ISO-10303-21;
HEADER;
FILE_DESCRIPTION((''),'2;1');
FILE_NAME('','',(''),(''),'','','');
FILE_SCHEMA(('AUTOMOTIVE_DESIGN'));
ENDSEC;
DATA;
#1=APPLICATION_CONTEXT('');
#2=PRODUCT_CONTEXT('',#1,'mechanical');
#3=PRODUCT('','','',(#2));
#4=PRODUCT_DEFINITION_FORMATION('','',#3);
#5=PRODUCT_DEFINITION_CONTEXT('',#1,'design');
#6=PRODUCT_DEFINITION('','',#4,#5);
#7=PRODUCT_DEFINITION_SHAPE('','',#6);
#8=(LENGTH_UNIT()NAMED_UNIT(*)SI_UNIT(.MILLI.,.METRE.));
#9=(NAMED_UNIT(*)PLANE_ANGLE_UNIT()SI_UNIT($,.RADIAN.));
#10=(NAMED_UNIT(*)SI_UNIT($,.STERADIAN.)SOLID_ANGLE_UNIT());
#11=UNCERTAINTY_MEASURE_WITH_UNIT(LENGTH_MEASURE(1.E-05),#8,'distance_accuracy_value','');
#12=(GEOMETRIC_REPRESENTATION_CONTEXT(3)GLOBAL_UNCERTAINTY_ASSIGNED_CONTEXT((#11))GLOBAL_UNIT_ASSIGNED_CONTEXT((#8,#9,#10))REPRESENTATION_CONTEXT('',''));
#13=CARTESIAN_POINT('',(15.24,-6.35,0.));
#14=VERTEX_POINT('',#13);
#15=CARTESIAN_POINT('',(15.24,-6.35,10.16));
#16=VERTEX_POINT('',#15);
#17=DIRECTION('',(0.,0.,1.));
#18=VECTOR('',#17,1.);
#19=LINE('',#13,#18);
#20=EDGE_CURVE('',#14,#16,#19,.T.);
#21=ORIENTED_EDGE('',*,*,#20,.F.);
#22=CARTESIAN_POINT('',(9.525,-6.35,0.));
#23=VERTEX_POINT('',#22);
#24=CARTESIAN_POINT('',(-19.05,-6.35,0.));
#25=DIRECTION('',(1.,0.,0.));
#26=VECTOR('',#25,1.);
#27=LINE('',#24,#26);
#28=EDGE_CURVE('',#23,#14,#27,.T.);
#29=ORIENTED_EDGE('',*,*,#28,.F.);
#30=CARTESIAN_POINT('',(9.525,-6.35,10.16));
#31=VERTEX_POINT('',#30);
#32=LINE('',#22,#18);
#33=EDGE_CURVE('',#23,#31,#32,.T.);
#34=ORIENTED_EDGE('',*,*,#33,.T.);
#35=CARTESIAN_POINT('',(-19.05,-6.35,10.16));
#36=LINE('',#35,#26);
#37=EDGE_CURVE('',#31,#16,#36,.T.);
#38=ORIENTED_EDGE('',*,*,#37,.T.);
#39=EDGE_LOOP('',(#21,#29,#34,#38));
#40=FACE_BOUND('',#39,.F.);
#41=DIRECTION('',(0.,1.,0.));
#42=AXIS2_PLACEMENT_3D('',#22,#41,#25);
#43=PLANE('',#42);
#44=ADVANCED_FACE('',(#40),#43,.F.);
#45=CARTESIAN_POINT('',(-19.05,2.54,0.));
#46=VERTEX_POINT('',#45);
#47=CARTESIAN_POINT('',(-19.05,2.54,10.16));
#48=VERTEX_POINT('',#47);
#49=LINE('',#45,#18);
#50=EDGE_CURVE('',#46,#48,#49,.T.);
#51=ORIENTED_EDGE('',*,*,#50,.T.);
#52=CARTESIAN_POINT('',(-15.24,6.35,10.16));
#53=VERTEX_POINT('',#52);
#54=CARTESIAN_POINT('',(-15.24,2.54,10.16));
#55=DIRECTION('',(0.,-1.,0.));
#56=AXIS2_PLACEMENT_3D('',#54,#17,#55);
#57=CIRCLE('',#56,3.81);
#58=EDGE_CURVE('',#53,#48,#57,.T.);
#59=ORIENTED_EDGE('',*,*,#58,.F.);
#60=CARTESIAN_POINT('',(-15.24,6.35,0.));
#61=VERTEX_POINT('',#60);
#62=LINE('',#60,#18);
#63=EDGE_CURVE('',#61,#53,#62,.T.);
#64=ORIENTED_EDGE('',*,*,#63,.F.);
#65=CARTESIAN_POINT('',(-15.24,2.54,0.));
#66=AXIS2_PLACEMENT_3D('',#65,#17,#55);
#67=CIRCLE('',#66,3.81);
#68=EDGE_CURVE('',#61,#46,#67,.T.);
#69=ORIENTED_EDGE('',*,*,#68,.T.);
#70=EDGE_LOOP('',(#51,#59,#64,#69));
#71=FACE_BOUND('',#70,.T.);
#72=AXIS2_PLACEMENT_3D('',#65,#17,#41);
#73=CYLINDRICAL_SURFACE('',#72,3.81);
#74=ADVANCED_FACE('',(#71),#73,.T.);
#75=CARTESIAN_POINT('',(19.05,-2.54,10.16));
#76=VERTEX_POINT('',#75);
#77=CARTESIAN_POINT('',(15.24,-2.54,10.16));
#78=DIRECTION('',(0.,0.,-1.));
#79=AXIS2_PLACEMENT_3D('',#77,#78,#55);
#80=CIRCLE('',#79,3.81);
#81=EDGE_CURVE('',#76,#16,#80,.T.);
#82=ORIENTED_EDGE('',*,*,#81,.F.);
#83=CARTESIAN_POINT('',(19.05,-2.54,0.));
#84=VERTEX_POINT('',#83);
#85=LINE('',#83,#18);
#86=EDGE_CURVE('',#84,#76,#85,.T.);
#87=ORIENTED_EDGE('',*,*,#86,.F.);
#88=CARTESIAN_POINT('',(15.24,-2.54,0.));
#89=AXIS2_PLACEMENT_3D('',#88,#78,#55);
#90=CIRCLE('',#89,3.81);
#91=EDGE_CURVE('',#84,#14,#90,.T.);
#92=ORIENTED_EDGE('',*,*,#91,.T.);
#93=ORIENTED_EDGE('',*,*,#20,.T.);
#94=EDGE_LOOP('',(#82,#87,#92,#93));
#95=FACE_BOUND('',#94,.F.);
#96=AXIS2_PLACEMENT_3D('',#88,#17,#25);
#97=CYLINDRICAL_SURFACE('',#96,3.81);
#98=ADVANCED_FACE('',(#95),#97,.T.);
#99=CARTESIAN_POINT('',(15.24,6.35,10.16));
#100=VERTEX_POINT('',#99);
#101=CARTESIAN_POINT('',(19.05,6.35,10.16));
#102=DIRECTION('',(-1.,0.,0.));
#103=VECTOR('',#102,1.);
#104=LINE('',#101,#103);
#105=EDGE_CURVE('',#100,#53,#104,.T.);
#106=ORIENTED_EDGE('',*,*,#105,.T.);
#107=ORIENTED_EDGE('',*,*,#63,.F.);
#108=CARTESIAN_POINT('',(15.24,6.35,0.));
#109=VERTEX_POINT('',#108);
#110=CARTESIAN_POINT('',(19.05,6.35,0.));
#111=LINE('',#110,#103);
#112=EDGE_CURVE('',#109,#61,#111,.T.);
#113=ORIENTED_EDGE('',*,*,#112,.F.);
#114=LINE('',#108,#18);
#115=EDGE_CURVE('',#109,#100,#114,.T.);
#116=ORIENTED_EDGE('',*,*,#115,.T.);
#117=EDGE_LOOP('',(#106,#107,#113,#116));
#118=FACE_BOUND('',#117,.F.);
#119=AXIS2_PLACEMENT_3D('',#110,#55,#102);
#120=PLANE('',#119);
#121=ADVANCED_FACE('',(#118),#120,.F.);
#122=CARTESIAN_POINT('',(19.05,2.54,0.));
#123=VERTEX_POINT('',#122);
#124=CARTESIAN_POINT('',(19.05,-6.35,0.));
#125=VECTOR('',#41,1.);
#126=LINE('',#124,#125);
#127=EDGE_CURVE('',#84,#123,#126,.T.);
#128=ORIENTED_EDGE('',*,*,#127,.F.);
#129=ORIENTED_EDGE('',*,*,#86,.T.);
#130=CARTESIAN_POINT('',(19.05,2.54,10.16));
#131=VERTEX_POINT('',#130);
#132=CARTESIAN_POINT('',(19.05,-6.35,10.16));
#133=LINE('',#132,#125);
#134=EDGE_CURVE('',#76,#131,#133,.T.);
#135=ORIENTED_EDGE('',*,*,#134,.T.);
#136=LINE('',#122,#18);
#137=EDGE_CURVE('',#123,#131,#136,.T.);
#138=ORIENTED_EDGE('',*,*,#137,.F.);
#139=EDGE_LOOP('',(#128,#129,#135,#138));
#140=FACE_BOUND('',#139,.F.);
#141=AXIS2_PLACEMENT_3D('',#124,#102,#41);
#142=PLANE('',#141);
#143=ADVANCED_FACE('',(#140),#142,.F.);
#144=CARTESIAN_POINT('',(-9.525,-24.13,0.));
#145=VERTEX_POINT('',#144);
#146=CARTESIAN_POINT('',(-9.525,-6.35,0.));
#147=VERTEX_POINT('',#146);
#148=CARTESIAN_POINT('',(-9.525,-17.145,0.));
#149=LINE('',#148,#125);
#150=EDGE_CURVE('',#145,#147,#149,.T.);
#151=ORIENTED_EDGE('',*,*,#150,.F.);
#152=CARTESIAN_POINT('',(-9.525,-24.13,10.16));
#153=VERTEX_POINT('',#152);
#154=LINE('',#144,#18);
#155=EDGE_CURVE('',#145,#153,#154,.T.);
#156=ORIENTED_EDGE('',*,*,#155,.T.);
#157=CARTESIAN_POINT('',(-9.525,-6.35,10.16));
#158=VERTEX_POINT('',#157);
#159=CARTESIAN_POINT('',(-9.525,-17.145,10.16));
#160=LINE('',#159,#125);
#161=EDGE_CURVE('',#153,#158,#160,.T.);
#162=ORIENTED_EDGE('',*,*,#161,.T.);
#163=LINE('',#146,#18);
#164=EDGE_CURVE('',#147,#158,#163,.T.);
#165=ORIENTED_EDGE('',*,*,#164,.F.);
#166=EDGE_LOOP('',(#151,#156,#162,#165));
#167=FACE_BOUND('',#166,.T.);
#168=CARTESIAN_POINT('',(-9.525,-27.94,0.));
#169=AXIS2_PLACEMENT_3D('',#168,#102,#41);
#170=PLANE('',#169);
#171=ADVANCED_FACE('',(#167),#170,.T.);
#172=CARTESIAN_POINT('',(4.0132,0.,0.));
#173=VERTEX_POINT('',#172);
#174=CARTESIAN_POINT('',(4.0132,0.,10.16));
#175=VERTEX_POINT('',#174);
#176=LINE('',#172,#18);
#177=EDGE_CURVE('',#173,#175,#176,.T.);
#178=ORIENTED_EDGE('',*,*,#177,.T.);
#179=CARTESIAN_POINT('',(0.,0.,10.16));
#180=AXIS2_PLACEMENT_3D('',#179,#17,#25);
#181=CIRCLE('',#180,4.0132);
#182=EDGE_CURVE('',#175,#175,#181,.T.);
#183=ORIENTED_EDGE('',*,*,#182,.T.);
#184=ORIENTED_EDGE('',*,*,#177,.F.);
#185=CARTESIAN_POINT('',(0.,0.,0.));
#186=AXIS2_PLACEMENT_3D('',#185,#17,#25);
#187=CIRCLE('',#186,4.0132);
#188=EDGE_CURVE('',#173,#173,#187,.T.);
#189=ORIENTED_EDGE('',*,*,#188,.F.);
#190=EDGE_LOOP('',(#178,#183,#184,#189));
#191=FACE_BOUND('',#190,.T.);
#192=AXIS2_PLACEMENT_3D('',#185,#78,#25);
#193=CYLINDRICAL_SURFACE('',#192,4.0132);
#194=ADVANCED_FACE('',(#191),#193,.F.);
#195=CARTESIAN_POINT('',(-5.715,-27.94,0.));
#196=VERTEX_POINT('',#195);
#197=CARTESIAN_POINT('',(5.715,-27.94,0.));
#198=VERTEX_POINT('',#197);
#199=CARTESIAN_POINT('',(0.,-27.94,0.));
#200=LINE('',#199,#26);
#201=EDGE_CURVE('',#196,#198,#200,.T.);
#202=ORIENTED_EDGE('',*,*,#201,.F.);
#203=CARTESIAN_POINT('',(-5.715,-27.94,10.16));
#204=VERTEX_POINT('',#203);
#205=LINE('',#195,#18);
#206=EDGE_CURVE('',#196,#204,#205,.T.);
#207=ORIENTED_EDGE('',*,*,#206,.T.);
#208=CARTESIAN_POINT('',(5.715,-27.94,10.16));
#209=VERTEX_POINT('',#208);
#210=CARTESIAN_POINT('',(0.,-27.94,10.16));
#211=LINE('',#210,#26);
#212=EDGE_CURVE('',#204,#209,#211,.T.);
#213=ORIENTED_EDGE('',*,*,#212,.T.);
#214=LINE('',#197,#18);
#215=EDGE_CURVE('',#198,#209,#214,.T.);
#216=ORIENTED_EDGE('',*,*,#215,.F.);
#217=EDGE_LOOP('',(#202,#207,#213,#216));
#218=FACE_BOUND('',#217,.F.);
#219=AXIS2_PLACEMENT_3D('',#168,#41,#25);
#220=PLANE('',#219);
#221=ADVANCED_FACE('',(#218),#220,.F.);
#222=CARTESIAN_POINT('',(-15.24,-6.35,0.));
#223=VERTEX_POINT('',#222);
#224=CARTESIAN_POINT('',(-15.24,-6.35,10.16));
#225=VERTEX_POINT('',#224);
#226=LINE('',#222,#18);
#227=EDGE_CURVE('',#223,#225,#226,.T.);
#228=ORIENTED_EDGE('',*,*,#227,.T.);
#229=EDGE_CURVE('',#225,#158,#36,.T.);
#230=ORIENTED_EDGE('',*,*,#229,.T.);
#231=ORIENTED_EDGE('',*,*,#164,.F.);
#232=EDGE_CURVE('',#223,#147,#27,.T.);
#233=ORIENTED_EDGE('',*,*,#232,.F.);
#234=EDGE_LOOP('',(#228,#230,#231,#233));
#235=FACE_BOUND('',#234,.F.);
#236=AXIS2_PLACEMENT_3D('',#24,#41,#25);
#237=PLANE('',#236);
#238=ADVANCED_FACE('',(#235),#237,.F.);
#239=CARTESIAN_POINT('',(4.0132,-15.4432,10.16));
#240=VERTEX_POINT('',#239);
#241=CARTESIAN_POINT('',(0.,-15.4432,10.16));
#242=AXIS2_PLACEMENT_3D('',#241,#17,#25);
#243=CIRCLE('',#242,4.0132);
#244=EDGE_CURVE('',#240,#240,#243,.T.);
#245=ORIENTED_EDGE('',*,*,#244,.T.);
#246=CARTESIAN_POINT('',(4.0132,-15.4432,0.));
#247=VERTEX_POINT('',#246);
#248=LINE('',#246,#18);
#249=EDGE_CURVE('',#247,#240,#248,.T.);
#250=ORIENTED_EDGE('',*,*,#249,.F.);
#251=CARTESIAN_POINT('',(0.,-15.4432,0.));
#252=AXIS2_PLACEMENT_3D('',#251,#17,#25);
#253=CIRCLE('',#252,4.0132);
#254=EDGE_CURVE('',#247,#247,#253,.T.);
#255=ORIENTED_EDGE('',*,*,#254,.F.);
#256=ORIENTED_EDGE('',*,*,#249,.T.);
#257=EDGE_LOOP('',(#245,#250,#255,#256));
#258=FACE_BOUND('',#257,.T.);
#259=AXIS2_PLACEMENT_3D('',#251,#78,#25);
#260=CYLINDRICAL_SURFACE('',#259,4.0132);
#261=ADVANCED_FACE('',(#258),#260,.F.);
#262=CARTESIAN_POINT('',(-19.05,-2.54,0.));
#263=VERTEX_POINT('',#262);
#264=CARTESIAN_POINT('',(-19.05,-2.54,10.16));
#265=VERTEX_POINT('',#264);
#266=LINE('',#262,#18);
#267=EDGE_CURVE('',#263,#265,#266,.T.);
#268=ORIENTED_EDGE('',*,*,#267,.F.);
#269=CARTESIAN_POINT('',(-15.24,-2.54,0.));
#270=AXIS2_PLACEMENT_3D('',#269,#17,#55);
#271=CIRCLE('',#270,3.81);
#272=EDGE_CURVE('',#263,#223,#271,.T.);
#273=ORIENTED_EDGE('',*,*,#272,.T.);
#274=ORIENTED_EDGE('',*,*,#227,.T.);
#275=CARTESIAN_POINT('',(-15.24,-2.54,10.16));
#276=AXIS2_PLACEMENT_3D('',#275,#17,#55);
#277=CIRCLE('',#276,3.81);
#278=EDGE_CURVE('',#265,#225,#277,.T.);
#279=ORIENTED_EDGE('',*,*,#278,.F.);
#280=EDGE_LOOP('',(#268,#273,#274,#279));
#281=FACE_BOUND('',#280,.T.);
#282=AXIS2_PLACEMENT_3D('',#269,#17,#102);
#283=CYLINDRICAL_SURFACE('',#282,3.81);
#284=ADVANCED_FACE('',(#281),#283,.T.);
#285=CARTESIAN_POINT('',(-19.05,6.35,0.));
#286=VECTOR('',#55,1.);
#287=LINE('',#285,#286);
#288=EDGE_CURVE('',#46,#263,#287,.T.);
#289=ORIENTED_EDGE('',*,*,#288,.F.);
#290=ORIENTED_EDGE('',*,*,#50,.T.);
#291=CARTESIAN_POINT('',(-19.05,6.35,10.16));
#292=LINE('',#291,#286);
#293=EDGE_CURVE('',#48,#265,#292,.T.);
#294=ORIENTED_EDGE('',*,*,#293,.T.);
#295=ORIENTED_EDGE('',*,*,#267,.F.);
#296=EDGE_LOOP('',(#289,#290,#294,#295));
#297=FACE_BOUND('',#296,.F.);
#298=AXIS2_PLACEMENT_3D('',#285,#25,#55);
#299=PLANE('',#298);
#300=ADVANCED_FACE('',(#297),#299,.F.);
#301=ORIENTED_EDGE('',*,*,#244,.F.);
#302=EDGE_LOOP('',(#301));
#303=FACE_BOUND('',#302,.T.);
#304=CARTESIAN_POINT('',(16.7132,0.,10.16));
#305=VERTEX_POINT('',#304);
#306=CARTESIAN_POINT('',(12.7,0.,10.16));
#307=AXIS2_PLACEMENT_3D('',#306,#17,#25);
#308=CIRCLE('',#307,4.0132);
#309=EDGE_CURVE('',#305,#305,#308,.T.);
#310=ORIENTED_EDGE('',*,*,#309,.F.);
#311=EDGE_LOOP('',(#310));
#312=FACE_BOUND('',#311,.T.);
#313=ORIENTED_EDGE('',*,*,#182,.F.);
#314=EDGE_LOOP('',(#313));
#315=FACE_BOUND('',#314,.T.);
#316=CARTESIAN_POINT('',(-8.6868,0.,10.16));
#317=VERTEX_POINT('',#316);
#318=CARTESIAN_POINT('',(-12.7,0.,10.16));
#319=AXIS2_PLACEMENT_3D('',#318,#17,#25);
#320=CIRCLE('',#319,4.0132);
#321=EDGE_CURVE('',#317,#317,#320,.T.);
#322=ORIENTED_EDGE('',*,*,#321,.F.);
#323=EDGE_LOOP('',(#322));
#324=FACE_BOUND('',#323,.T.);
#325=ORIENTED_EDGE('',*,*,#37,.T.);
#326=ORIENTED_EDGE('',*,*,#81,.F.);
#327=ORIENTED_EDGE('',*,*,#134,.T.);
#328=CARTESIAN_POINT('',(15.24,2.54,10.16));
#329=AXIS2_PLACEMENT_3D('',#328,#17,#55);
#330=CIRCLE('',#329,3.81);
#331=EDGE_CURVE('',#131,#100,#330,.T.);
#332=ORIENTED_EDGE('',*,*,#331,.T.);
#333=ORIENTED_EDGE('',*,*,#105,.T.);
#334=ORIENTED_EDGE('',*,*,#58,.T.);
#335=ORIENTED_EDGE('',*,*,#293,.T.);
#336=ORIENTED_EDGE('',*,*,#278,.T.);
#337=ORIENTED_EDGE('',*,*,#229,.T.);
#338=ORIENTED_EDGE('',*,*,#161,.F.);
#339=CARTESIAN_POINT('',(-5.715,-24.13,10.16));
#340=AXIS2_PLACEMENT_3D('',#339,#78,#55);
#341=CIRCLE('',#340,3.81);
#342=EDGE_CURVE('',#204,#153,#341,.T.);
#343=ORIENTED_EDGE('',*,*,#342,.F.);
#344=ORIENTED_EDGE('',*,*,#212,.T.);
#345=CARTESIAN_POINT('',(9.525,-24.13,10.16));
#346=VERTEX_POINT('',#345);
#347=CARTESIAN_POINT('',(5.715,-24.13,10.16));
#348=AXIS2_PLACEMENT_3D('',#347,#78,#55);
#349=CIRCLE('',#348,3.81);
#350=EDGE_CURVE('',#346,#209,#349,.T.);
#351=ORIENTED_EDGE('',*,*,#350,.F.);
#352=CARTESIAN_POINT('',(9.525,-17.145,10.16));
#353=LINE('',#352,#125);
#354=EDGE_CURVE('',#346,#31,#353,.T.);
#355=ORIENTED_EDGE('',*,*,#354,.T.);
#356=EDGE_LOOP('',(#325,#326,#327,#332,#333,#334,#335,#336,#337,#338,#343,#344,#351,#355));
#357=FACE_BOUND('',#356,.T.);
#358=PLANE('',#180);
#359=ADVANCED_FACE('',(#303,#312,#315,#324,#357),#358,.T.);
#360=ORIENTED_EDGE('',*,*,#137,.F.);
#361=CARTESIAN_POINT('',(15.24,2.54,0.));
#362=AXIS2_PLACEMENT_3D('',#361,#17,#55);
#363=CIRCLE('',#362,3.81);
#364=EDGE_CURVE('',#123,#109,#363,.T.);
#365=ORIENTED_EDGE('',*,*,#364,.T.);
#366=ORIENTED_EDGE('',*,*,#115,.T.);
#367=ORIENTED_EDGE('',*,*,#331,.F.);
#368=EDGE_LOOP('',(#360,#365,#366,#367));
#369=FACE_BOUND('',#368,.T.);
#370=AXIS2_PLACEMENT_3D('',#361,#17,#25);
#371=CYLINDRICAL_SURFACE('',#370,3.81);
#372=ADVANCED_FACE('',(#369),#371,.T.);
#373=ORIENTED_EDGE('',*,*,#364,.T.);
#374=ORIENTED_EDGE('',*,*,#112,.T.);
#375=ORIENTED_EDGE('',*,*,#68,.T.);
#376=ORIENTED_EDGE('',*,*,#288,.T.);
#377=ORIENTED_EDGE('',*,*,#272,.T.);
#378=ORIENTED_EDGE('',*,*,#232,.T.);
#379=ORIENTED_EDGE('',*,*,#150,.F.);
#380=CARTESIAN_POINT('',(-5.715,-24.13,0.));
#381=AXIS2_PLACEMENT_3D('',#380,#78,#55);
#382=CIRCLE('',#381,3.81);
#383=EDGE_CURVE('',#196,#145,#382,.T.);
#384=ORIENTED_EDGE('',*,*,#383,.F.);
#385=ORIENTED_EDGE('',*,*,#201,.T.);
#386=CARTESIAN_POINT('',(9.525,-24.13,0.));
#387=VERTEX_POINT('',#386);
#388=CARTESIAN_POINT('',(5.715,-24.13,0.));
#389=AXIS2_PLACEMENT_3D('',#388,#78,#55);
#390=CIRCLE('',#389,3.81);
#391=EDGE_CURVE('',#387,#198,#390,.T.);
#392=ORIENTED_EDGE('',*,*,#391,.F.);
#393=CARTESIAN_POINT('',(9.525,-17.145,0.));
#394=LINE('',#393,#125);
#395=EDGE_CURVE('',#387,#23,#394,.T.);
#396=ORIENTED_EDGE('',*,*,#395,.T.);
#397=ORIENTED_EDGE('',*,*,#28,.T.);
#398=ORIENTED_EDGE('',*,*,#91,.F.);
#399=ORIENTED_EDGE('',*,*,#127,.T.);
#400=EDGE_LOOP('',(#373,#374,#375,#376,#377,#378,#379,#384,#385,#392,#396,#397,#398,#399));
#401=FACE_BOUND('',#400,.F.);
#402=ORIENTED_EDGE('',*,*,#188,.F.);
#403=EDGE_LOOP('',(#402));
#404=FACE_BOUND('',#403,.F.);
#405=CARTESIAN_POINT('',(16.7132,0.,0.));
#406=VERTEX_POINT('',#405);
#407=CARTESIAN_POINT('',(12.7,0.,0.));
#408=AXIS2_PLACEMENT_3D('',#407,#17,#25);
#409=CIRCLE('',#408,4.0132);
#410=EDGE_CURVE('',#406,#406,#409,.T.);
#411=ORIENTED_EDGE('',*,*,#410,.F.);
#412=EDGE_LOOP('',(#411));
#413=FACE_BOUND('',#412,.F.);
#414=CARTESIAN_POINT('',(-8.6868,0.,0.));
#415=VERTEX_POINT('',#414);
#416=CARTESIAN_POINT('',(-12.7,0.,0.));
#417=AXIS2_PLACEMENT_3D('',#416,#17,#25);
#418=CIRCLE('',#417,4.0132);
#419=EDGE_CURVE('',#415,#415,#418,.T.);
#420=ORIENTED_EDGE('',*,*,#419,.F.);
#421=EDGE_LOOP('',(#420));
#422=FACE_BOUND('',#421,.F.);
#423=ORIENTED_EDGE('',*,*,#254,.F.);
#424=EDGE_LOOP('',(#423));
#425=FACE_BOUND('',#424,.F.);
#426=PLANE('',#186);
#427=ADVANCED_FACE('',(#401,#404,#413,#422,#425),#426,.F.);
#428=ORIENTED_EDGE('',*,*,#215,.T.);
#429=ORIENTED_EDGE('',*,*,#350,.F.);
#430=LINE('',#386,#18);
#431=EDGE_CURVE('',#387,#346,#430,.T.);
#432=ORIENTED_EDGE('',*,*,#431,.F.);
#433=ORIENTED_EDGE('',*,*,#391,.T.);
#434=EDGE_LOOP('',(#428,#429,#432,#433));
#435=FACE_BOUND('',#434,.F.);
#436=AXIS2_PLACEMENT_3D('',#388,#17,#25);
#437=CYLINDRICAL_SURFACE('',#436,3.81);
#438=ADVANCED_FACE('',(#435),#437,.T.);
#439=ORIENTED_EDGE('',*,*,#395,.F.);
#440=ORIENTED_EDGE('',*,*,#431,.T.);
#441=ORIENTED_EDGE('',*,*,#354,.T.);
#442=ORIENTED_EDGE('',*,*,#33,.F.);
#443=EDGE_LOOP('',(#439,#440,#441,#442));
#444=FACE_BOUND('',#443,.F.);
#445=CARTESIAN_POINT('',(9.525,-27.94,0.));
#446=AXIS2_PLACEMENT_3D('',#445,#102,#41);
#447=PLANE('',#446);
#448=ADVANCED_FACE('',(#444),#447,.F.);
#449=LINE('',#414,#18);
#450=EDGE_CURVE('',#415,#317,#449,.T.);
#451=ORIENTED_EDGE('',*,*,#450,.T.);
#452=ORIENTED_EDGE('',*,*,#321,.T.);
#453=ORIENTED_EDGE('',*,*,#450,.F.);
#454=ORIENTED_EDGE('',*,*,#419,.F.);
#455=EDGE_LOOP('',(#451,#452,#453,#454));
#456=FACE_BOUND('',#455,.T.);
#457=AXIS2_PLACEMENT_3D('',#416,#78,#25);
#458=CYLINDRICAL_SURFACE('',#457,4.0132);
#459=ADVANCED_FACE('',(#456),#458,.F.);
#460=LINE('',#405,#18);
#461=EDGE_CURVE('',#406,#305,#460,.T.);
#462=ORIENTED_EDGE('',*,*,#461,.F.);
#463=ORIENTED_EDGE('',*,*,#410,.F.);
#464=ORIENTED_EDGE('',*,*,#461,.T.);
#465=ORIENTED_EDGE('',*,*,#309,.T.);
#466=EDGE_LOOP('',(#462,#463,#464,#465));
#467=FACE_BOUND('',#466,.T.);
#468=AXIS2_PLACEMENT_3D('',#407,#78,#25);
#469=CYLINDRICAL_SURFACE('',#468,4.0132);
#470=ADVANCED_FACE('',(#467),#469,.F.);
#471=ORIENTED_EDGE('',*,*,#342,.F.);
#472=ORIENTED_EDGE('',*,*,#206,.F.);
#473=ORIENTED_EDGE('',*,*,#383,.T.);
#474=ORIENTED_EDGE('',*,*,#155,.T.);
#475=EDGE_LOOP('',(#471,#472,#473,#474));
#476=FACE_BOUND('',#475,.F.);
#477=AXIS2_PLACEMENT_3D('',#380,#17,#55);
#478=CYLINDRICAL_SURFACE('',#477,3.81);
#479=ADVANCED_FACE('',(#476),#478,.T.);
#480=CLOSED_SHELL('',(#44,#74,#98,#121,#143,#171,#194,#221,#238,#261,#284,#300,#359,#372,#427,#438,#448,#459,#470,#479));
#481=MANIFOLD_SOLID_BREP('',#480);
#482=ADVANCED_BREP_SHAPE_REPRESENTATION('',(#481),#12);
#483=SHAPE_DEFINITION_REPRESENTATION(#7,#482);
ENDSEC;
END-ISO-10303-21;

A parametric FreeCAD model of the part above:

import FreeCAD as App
import Part
import Sketcher

V = App.Vector
Q = App.Units.Quantity


def edges_at(feature, points):
    """Names of the edges that pass closest to the given points."""
    edges = feature.Shape.Edges
    near = lambda p: min(range(len(edges)), key=lambda i: edges[i].distToShape(Part.Vertex(*p))[0])
    return sorted({f"Edge{near(p) + 1}" for p in points})


def add_polygon(sketch, points):
    """Adds a closed chain of lines whose ends are joined by coincident constraints."""
    first, n = sketch.GeometryCount, len(points)
    for a, b in zip(points, points[1:] + points[:1]):
        sketch.addGeometry(Part.LineSegment(App.Vector(*a, 0), App.Vector(*b, 0)), False)
    for i in range(n):
        sketch.addConstraint(Sketcher.Constraint("Coincident", first + i, 2, first + (i + 1) % n, 1))

doc = App.newDocument("Part")
body = doc.addObject("PartDesign::Body", "Body")

# Sketch on XY plane
sketch1 = body.newObject("Sketcher::SketchObject", "Sketch")
sketch1.AttachmentSupport = (doc.getObject("XY_Plane"), [""])
sketch1.MapMode = "FlatFace"
add_polygon(sketch1, [(19.05, -6.35), (19.05, 6.35), (-19.05, 6.35), (-19.05, -6.35), (-9.525, -6.35), (-9.525, -27.94), (9.525, -27.94), (9.525, -6.35)])  # lines 0-7
sketch1.addGeometry(Part.Circle(V(0, -15.4432, 0), V(0, 0, 1), 4.0132), False)  # 8
sketch1.addGeometry(Part.Circle(V(-12.7, 0, 0), V(0, 0, 1), 4.0132), False)  # 9
sketch1.addGeometry(Part.Circle(V(0, 0, 0), V(0, 0, 1), 4.0132), False)  # 10
sketch1.addGeometry(Part.Circle(V(12.7, 0, 0), V(0, 0, 1), 4.0132), False)  # 11
sketch1.addConstraint(Sketcher.Constraint("Vertical", 0))
sketch1.addConstraint(Sketcher.Constraint("Horizontal", 1))
sketch1.addConstraint(Sketcher.Constraint("Vertical", 2))
sketch1.addConstraint(Sketcher.Constraint("Horizontal", 3))
sketch1.addConstraint(Sketcher.Constraint("Vertical", 4))
sketch1.addConstraint(Sketcher.Constraint("Horizontal", 5))
sketch1.addConstraint(Sketcher.Constraint("Vertical", 6))
sketch1.addConstraint(Sketcher.Constraint("Horizontal", 7))
sketch1.addConstraint(Sketcher.Constraint("Coincident", 10, 3, -1, 1))
sketch1.addConstraint(Sketcher.Constraint("Equal", 8, 9))
sketch1.addConstraint(Sketcher.Constraint("Equal", 9, 10))
sketch1.addConstraint(Sketcher.Constraint("Equal", 10, 11))
sketch1.addConstraint(Sketcher.Constraint("Symmetric", 9, 3, 11, 3, -1, 1))
sketch1.addConstraint(Sketcher.Constraint("Symmetric", 0, 2, 2, 2, -1, 1))
sketch1.addConstraint(Sketcher.Constraint("Symmetric", 3, 2, 6, 2, -2))
sketch1.addConstraint(Sketcher.Constraint("PointOnObject", 8, 3, -2))
sketch1.addConstraint(Sketcher.Constraint("PointOnObject", 9, 3, -1))
sketch1.addConstraint(Sketcher.Constraint("Diameter", 8, Q("0.316 in")))
sketch1.addConstraint(Sketcher.Constraint("DistanceX", 1, 2, 1, 1, Q("1.5 in")))
sketch1.addConstraint(Sketcher.Constraint("DistanceY", 0, 1, 0, 2, Q("0.5 in")))
sketch1.addConstraint(Sketcher.Constraint("DistanceX", 9, 3, 11, 3, Q("1 in")))
sketch1.addConstraint(Sketcher.Constraint("DistanceX", 5, 1, 5, 2, Q("0.75 in")))
sketch1.addConstraint(Sketcher.Constraint("DistanceY", 4, 2, 4, 1, Q("0.85 in")))
sketch1.addConstraint(Sketcher.Constraint("DistanceY", 8, 3, -1, 1, Q("0.608 in")))
pad1 = body.newObject("PartDesign::Pad", "Pad")
pad1.Profile = sketch1
pad1.Length = Q("0.4 in")
doc.recompute()

fillet = body.newObject("PartDesign::Fillet", "Fillet")
fillet.Base = (pad1, edges_at(pad1, [
    (-9.525, -27.94, 5.08),
    (9.525, -27.94, 5.08),
    (19.05, -6.35, 5.08),
    (19.05, 6.35, 5.08),
    (-19.05, -6.35, 5.08),
    (-19.05, 6.35, 5.08),
]))
fillet.Radius = Q("0.15 in")

doc.recompute()
